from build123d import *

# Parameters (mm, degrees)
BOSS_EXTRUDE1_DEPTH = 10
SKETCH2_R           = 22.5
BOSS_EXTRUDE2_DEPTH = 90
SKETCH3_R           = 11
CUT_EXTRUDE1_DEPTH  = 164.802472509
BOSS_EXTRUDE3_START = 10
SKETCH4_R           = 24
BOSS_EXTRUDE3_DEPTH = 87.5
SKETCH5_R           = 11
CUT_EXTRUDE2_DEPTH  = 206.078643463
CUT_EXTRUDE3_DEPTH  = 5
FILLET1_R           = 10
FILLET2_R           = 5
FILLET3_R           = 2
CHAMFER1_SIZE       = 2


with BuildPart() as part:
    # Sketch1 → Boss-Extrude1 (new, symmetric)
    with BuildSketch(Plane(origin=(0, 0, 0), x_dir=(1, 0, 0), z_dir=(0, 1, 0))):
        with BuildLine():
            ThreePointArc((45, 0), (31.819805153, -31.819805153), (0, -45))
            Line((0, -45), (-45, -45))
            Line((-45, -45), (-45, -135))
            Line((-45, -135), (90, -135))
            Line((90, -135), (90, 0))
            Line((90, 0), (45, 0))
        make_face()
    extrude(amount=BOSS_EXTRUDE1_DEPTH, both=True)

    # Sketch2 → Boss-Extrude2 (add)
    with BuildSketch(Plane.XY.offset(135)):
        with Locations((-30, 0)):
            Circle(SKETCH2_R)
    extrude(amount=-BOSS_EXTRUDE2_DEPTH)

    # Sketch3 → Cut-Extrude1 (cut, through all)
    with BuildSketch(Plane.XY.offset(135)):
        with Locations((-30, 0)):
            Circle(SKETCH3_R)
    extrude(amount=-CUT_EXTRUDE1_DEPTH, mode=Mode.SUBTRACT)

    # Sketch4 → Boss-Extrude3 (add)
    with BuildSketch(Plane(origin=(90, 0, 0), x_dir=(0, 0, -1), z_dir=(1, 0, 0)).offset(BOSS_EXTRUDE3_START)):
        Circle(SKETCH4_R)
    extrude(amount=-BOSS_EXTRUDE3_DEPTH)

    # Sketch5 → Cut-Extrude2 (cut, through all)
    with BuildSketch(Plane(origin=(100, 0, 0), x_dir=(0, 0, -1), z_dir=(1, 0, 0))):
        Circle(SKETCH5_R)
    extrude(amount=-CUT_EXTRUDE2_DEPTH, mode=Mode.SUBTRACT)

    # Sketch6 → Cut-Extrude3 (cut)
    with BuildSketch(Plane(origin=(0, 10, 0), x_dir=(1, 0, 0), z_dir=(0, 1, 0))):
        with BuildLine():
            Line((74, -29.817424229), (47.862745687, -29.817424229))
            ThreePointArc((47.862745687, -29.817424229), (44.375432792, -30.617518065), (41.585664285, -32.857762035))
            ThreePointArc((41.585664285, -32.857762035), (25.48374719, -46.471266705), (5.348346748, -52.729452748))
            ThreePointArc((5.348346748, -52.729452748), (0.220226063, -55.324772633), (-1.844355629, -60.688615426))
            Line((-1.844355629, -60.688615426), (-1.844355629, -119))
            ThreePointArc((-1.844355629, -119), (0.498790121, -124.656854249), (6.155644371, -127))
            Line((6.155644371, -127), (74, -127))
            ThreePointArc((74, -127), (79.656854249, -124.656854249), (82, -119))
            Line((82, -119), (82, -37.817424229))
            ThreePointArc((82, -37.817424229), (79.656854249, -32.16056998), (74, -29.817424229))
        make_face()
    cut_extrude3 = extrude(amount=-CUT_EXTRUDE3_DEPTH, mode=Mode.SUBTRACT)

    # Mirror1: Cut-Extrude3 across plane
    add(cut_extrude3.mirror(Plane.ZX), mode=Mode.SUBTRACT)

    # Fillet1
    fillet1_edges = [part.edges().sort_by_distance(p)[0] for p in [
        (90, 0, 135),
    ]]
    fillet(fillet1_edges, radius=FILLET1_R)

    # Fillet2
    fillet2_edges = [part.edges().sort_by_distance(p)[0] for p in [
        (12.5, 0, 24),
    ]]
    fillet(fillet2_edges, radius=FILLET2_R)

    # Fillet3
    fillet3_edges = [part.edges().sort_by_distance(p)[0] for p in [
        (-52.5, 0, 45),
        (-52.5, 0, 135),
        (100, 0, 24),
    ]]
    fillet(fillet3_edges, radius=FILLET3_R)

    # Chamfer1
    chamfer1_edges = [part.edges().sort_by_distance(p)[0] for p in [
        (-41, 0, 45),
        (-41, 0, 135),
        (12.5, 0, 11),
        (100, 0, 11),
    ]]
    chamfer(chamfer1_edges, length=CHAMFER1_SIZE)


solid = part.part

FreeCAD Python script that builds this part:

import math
import FreeCAD as App
import Part
import Sketcher

V = App.Vector


def edges_at(feature, points):
    """Names of the edges that pass closest to the given points."""
    edges = feature.Shape.Edges
    near = lambda p: min(range(len(edges)), key=lambda i: edges[i].distToShape(Part.Vertex(*p))[0])
    return sorted({f"Edge{near(p) + 1}" for p in points})

doc = App.newDocument("Part")
body = doc.addObject("PartDesign::Body", "Body")

sketch1 = body.newObject("Sketcher::SketchObject", "Sketch")
sketch1.AttachmentSupport = (doc.getObject("XZ_Plane"), [""])
sketch1.MapMode = "FlatFace"
sketch1.addGeometry([
    Part.ArcOfCircle(Part.Circle(V(0, 0, 0), V(0, 0, 1), 45), math.radians(0), math.radians(90)),
    Part.LineSegment(V(0, 45, 0), V(-45, 45, 0)),
    Part.LineSegment(V(-45, 45, 0), V(-45, 135, 0)),
    Part.LineSegment(V(-45, 135, 0), V(90, 135, 0)),
    Part.LineSegment(V(90, 135, 0), V(90, 0, 0)),
    Part.LineSegment(V(90, 0, 0), V(45, 0, 0)),
], False)
sketch1.addConstraint([
    Sketcher.Constraint("Tangent", 0, 2, 1, 1),
    Sketcher.Constraint("Coincident", 1, 2, 2, 1),
    Sketcher.Constraint("Coincident", 2, 2, 3, 1),
    Sketcher.Constraint("Coincident", 3, 2, 4, 1),
    Sketcher.Constraint("Coincident", 4, 2, 5, 1),
    Sketcher.Constraint("Coincident", 5, 2, 0, 1),
    Sketcher.Constraint("Horizontal", 1),
    Sketcher.Constraint("Vertical", 2),
    Sketcher.Constraint("Horizontal", 3),
    Sketcher.Constraint("Vertical", 4),
    Sketcher.Constraint("Horizontal", 5),
    Sketcher.Constraint("Coincident", 0, 3, -1, 1),
    Sketcher.Constraint("PointOnObject", 4, 2, -1),
    Sketcher.Constraint("Equal", 1, 5),
    Sketcher.Constraint("Equal", 3, 4),
    Sketcher.Constraint("Radius", 0, 45.0),
    Sketcher.Constraint("DistanceX", 1, 2, 1, 1, 45.0),
])
pad1 = body.newObject("PartDesign::Pad", "Pad")
pad1.Profile = sketch1
pad1.Length = 20
pad1.Midplane = True

sketch2 = body.newObject("Sketcher::SketchObject", "Sketch001")
sketch2.AttachmentSupport = (doc.getObject("XY_Plane"), [""])
sketch2.MapMode = "FlatFace"
sketch2.AttachmentOffset = App.Placement(V(0, 0, 135), App.Rotation())
sketch2.addGeometry(Part.Circle(V(-30, 0, 0), V(0, 0, 1), 22), False)
sketch2.addConstraint([
    Sketcher.Constraint("PointOnObject", 0, 3, -1),
    Sketcher.Constraint("Diameter", 0, 45.0),
    Sketcher.Constraint("DistanceX", 0, 3, -1, 1, 30.0),
])
pad2 = body.newObject("PartDesign::Pad", "Pad001")
pad2.Profile = sketch2
pad2.Length = 90
pad2.Reversed = True

sketch3 = body.newObject("Sketcher::SketchObject", "Sketch002")
sketch3.AttachmentSupport = (doc.getObject("XY_Plane"), [""])
sketch3.MapMode = "FlatFace"
sketch3.AttachmentOffset = App.Placement(V(0, 0, 135), App.Rotation())
sketch3.addGeometry(Part.Circle(V(-30, 0, 0), V(0, 0, 1), 11), False)
sketch3.addConstraint([
    Sketcher.Constraint("PointOnObject", 0, 3, -1),
    Sketcher.Constraint("Diameter", 0, 22.0),
    Sketcher.Constraint("DistanceX", 0, 3, -1, 1, 30.0),
])
pocket1 = body.newObject("PartDesign::Pocket", "Pocket")
pocket1.Profile = sketch3
pocket1.Type = "ThroughAll"

sketch4 = body.newObject("Sketcher::SketchObject", "Sketch003")
sketch4.AttachmentSupport = (doc.getObject("YZ_Plane"), [""])
sketch4.MapMode = "FlatFace"
sketch4.AttachmentOffset = App.Placement(V(0, 0, 100), App.Rotation())
sketch4.addGeometry(Part.Circle(V(0, 0, 0), V(0, 0, 1), 24), False)
sketch4.addConstraint([
    Sketcher.Constraint("Coincident", 0, 3, -1, 1),
    Sketcher.Constraint("Diameter", 0, 48.0),
])
pad3 = body.newObject("PartDesign::Pad", "Pad002")
pad3.Profile = sketch4
pad3.Length = 87.5
pad3.Reversed = True

sketch5 = body.newObject("Sketcher::SketchObject", "Sketch004")
sketch5.AttachmentSupport = (doc.getObject("YZ_Plane"), [""])
sketch5.MapMode = "FlatFace"
sketch5.AttachmentOffset = App.Placement(V(0, 0, 100), App.Rotation())
sketch5.addGeometry(Part.Circle(V(0, 0, 0), V(0, 0, 1), 11), False)
sketch5.addConstraint([
    Sketcher.Constraint("Coincident", 0, 3, -1, 1),
    Sketcher.Constraint("Diameter", 0, 22.0),
])
pocket2 = body.newObject("PartDesign::Pocket", "Pocket001")
pocket2.Profile = sketch5
pocket2.Type = "ThroughAll"

sketch6 = body.newObject("Sketcher::SketchObject", "Sketch005")
sketch6.AttachmentSupport = (doc.getObject("XZ_Plane"), [""])
sketch6.MapMode = "FlatFace"
sketch6.AttachmentOffset = App.Placement(V(0, 0, -10), App.Rotation())
sketch6.addGeometry([
    Part.LineSegment(V(74, 30, 0), V(48, 30, 0)),
    Part.ArcOfCircle(Part.Circle(V(48, 38, 0), V(0, 0, 1), 8), math.radians(-142), math.radians(-90)),
    Part.ArcOfCircle(Part.Circle(V(0, 0, 0), V(0, 0, 1), 53), math.radians(38), math.radians(84)),
    Part.ArcOfCircle(Part.Circle(V(6, 61, 0), V(0, 0, 1), 8), math.radians(180), math.radians(264)),
    Part.LineSegment(V(-2, 61, 0), V(-2, 119, 0)),
    Part.ArcOfCircle(Part.Circle(V(6, 119, 0), V(0, 0, 1), 8), math.radians(90), math.radians(180)),
    Part.LineSegment(V(6, 127, 0), V(74, 127, 0)),
    Part.ArcOfCircle(Part.Circle(V(74, 119, 0), V(0, 0, 1), 8), math.radians(0), math.radians(90)),
    Part.LineSegment(V(82, 119, 0), V(82, 38, 0)),
    Part.ArcOfCircle(Part.Circle(V(74, 38, 0), V(0, 0, 1), 8), math.radians(-90), math.radians(0)),
], False)
sketch6.addConstraint([
    Sketcher.Constraint("Tangent", 0, 2, 1, 2),
    Sketcher.Constraint("Tangent", 1, 1, 2, 1),
    Sketcher.Constraint("Tangent", 2, 2, 3, 2),
    Sketcher.Constraint("Tangent", 3, 1, 4, 1),
    Sketcher.Constraint("Tangent", 4, 2, 5, 2),
    Sketcher.Constraint("Tangent", 5, 1, 6, 1),
    Sketcher.Constraint("Tangent", 6, 2, 7, 2),
    Sketcher.Constraint("Tangent", 7, 1, 8, 1),
    Sketcher.Constraint("Tangent", 8, 2, 9, 2),
    Sketcher.Constraint("Tangent", 9, 1, 0, 1),
    Sketcher.Constraint("Horizontal", 0),
    Sketcher.Constraint("Vertical", 4),
    Sketcher.Constraint("Horizontal", 6),
    Sketcher.Constraint("Vertical", 8),
    Sketcher.Constraint("Coincident", 2, 3, -1, 1),
    Sketcher.Constraint("Equal", 1, 3),
    Sketcher.Constraint("Equal", 3, 5),
    Sketcher.Constraint("Equal", 5, 7),
    Sketcher.Constraint("Equal", 7, 9),
    Sketcher.Constraint("Radius", 1, 8.0),
    Sketcher.Constraint("Radius", 2, 53.0),
    Sketcher.Constraint("DistanceY", -1, 1, 5, 3, 119.0),
    Sketcher.Constraint("DistanceX", -1, 1, 7, 3, 74.0),
    Sketcher.Constraint("DistanceX", 3, 3, 1, 3, 41.707101),
    Sketcher.Constraint("DistanceX", 0, 2, 0, 1, 26.137254),
])
pocket3 = body.newObject("PartDesign::Pocket", "Pocket002")
pocket3.Profile = sketch6
pocket3.Length = 5
pocket3.Reversed = True
doc.recompute()

mirrored = body.newObject("PartDesign::Mirrored", "Mirrored")
mirrored.Originals = [pocket3]
mirrored.MirrorPlane = (doc.getObject("XZ_Plane"), [""])
body.Tip = mirrored
doc.recompute()

fillet = body.newObject("PartDesign::Fillet", "Fillet")
fillet.Base = (mirrored, edges_at(mirrored, [(90, 0, 135)]))
fillet.Radius = 10
doc.recompute()

fillet2 = body.newObject("PartDesign::Fillet", "Fillet001")
fillet2.Base = (fillet, edges_at(fillet, [(12.5, 0, 24)]))
fillet2.Radius = 5
doc.recompute()

fillet3 = body.newObject("PartDesign::Fillet", "Fillet002")
fillet3.Base = (fillet2, edges_at(fillet2, [(-52.5, 0, 45), (-52.5, 0, 135), (100, 0, 24)]))
fillet3.Radius = 2
doc.recompute()

chamfer = body.newObject("PartDesign::Chamfer", "Chamfer")
chamfer.Base = (fillet3, edges_at(fillet3, [
    (-41, 0, 45),
    (-41, 0, 135),
    (12.5, 0, 11),
    (100, 0, 11),
]))
chamfer.Size = 2

doc.recompute()
